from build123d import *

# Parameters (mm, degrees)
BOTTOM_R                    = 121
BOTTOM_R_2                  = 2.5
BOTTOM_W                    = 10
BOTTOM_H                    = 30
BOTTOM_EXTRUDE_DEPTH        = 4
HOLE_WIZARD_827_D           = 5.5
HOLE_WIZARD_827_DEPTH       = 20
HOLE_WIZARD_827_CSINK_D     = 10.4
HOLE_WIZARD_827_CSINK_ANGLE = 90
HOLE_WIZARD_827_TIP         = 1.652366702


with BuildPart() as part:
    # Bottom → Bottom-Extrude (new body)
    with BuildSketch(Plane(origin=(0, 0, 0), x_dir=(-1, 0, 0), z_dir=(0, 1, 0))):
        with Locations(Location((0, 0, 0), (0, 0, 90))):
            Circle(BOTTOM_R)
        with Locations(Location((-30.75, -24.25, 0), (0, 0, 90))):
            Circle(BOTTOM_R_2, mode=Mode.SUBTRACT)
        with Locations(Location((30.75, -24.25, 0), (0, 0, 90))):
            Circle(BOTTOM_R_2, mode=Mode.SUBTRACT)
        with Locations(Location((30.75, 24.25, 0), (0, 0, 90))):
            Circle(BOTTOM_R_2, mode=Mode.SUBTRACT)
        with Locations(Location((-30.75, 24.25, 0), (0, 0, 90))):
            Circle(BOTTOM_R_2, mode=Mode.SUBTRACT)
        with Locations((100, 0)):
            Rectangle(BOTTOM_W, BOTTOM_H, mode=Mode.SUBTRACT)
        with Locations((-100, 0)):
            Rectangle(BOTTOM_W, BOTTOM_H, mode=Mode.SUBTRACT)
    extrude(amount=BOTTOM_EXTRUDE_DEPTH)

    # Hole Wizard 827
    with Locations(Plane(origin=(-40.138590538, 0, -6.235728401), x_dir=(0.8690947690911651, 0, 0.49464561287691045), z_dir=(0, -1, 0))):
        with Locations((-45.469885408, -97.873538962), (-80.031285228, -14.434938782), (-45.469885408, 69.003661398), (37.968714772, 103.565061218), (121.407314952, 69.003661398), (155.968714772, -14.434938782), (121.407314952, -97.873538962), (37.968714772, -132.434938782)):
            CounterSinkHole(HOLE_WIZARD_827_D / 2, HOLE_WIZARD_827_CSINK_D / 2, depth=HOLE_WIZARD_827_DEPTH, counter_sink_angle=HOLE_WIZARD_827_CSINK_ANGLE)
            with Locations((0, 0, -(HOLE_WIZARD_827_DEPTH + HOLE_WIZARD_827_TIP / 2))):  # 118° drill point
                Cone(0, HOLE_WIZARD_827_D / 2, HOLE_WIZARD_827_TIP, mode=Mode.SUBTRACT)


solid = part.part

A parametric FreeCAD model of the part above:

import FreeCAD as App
import Part
import Sketcher

doc = App.newDocument("Part")
body = doc.addObject("PartDesign::Body", "Body")

# Sketch on XZ plane
sketch1 = body.newObject("Sketcher::SketchObject", "Sketch")
sketch1.AttachmentSupport = (doc.getObject("XZ_Plane"), [""])
sketch1.MapMode = "FlatFace"
sketch1.addGeometry([
    Part.Circle(App.Vector(0, 0, 0), App.Vector(0, 0, 1), 121),  # 0
    Part.Circle(App.Vector(-30.8, -24.2, 0), App.Vector(0, 0, 1), 2.5),  # 1
    Part.LineSegment(App.Vector(-105, -15, 0), App.Vector(-95, -15, 0)),  # 2
    Part.LineSegment(App.Vector(-95, -15, 0), App.Vector(-95, 15, 0)),  # 3
    Part.LineSegment(App.Vector(-95, 15, 0), App.Vector(-105, 15, 0)),  # 4
    Part.LineSegment(App.Vector(-105, 15, 0), App.Vector(-105, -15, 0)),  # 5
    Part.Circle(App.Vector(-30.8, 24.2, 0), App.Vector(0, 0, 1), 2.5),  # 6
    Part.Circle(App.Vector(30.8, -24.2, 0), App.Vector(0, 0, 1), 2.5),  # 7
    Part.LineSegment(App.Vector(95, -15, 0), App.Vector(105, -15, 0)),  # 8
    Part.LineSegment(App.Vector(105, -15, 0), App.Vector(105, 15, 0)),  # 9
    Part.LineSegment(App.Vector(105, 15, 0), App.Vector(95, 15, 0)),  # 10
    Part.LineSegment(App.Vector(95, 15, 0), App.Vector(95, -15, 0)),  # 11
    Part.Circle(App.Vector(30.8, 24.2, 0), App.Vector(0, 0, 1), 2.5),  # 12
], False)
sketch1.addConstraint([
    Sketcher.Constraint("Coincident", 2, 2, 3, 1),
    Sketcher.Constraint("Coincident", 3, 2, 4, 1),
    Sketcher.Constraint("Coincident", 4, 2, 5, 1),
    Sketcher.Constraint("Coincident", 5, 2, 2, 1),
    Sketcher.Constraint("Coincident", 8, 2, 9, 1),
    Sketcher.Constraint("Coincident", 9, 2, 10, 1),
    Sketcher.Constraint("Coincident", 10, 2, 11, 1),
    Sketcher.Constraint("Coincident", 11, 2, 8, 1),
    Sketcher.Constraint("Horizontal", 2),
    Sketcher.Constraint("Vertical", 3),
    Sketcher.Constraint("Horizontal", 4),
    Sketcher.Constraint("Vertical", 5),
    Sketcher.Constraint("Horizontal", 8),
    Sketcher.Constraint("Vertical", 9),
    Sketcher.Constraint("Horizontal", 10),
    Sketcher.Constraint("Vertical", 11),
    Sketcher.Constraint("Coincident", 0, 3, -1, 1),
    Sketcher.Constraint("Equal", 1, 6),
    Sketcher.Constraint("Equal", 6, 7),
    Sketcher.Constraint("Equal", 7, 12),
    Sketcher.Constraint("Symmetric", 6, 3, 7, 3, -1, 1),
    Sketcher.Constraint("Symmetric", 1, 3, 12, 3, -1, 1),
    Sketcher.Constraint("Symmetric", 4, 2, 8, 2, -1, 1),
    Sketcher.Constraint("Symmetric", 2, 2, 10, 2, -1, 1),
    Sketcher.Constraint("Symmetric", 1, 3, 7, 3, -2),
    Sketcher.Constraint("Horizontal", 5, 2, 8, 2),
    Sketcher.Constraint("Diameter", 0, 242.0),
    Sketcher.Constraint("Diameter", 1, 5.0),
    Sketcher.Constraint("DistanceX", 2, 1, 2, 2, 10.0),
    Sketcher.Constraint("DistanceY", 3, 1, 3, 2, 30.0),
    Sketcher.Constraint("DistanceX", 2, 2, -1, 1, 95.0),
    Sketcher.Constraint("DistanceY", 1, 3, 6, 3, 48.5),
    Sketcher.Constraint("DistanceX", 1, 3, 7, 3, 61.5),
])
pad1 = body.newObject("PartDesign::Pad", "Pad")
pad1.Profile = sketch1
pad1.Length = 4
pad1.Reversed = True

# Sketch on XZ plane
sketch2 = body.newObject("Sketcher::SketchObject", "Sketch001")
sketch2.AttachmentSupport = (doc.getObject("XZ_Plane"), [""])
sketch2.MapMode = "FlatFace"
sketch2.addGeometry([
    Part.Circle(App.Vector(-31.2, -113.8, 0), App.Vector(0, 0, 1), 2.8),  # 0
    Part.Circle(App.Vector(-102.6, -58.4, 0), App.Vector(0, 0, 1), 2.8),  # 1
    Part.Circle(App.Vector(-113.8, 31.2, 0), App.Vector(0, 0, 1), 2.8),  # 2
    Part.Circle(App.Vector(-58.4, 102.6, 0), App.Vector(0, 0, 1), 2.8),  # 3
    Part.Circle(App.Vector(31.2, 113.8, 0), App.Vector(0, 0, 1), 2.8),  # 4
    Part.Circle(App.Vector(102.6, 58.4, 0), App.Vector(0, 0, 1), 2.8),  # 5
    Part.Circle(App.Vector(113.8, -31.2, 0), App.Vector(0, 0, 1), 2.8),  # 6
    Part.Circle(App.Vector(58.4, -102.6, 0), App.Vector(0, 0, 1), 2.8),  # 7
], False)
sketch2.addConstraint([
    Sketcher.Constraint("Equal", 0, 1),
    Sketcher.Constraint("Equal", 1, 2),
    Sketcher.Constraint("Equal", 2, 3),
    Sketcher.Constraint("Equal", 3, 4),
    Sketcher.Constraint("Equal", 4, 5),
    Sketcher.Constraint("Equal", 5, 6),
    Sketcher.Constraint("Equal", 6, 7),
    Sketcher.Constraint("Symmetric", 0, 3, 4, 3, -1, 1),
    Sketcher.Constraint("Symmetric", 1, 3, 5, 3, -1, 1),
    Sketcher.Constraint("Symmetric", 2, 3, 6, 3, -1, 1),
    Sketcher.Constraint("Symmetric", 3, 3, 7, 3, -1, 1),
    Sketcher.Constraint("Diameter", 0, 5.5),
    Sketcher.Constraint("DistanceX", 1, 3, 3, 3, 44.185),
    Sketcher.Constraint("DistanceY", 5, 3, 3, 3, 44.185),
    Sketcher.Constraint("DistanceY", 0, 3, 2, 3, 145.032102),
    Sketcher.Constraint("DistanceX", 2, 3, 4, 3, 145.032102),
    Sketcher.Constraint("DistanceY", 0, 3, -1, 1, 113.788588),
    Sketcher.Constraint("DistanceX", 2, 3, -1, 1, 113.788588),
    Sketcher.Constraint("DistanceX", 1, 3, 0, 3, 71.309669),
    Sketcher.Constraint("DistanceY", 2, 3, 3, 3, 71.309669),
])
doc.recompute()
hole = body.newObject("PartDesign::Hole", "Hole")
hole.Profile = sketch2
hole.ThreadType = "None"
hole.Diameter = 5.5
hole.DepthType = "Dimension"
hole.Depth = 20
hole.DrillPoint = "Angled"
hole.DrillPointAngle = 118
hole.HoleCutType = "Countersink"
hole.HoleCutDiameter = 10.4
hole.HoleCutCountersinkAngle = 90

doc.recompute()
